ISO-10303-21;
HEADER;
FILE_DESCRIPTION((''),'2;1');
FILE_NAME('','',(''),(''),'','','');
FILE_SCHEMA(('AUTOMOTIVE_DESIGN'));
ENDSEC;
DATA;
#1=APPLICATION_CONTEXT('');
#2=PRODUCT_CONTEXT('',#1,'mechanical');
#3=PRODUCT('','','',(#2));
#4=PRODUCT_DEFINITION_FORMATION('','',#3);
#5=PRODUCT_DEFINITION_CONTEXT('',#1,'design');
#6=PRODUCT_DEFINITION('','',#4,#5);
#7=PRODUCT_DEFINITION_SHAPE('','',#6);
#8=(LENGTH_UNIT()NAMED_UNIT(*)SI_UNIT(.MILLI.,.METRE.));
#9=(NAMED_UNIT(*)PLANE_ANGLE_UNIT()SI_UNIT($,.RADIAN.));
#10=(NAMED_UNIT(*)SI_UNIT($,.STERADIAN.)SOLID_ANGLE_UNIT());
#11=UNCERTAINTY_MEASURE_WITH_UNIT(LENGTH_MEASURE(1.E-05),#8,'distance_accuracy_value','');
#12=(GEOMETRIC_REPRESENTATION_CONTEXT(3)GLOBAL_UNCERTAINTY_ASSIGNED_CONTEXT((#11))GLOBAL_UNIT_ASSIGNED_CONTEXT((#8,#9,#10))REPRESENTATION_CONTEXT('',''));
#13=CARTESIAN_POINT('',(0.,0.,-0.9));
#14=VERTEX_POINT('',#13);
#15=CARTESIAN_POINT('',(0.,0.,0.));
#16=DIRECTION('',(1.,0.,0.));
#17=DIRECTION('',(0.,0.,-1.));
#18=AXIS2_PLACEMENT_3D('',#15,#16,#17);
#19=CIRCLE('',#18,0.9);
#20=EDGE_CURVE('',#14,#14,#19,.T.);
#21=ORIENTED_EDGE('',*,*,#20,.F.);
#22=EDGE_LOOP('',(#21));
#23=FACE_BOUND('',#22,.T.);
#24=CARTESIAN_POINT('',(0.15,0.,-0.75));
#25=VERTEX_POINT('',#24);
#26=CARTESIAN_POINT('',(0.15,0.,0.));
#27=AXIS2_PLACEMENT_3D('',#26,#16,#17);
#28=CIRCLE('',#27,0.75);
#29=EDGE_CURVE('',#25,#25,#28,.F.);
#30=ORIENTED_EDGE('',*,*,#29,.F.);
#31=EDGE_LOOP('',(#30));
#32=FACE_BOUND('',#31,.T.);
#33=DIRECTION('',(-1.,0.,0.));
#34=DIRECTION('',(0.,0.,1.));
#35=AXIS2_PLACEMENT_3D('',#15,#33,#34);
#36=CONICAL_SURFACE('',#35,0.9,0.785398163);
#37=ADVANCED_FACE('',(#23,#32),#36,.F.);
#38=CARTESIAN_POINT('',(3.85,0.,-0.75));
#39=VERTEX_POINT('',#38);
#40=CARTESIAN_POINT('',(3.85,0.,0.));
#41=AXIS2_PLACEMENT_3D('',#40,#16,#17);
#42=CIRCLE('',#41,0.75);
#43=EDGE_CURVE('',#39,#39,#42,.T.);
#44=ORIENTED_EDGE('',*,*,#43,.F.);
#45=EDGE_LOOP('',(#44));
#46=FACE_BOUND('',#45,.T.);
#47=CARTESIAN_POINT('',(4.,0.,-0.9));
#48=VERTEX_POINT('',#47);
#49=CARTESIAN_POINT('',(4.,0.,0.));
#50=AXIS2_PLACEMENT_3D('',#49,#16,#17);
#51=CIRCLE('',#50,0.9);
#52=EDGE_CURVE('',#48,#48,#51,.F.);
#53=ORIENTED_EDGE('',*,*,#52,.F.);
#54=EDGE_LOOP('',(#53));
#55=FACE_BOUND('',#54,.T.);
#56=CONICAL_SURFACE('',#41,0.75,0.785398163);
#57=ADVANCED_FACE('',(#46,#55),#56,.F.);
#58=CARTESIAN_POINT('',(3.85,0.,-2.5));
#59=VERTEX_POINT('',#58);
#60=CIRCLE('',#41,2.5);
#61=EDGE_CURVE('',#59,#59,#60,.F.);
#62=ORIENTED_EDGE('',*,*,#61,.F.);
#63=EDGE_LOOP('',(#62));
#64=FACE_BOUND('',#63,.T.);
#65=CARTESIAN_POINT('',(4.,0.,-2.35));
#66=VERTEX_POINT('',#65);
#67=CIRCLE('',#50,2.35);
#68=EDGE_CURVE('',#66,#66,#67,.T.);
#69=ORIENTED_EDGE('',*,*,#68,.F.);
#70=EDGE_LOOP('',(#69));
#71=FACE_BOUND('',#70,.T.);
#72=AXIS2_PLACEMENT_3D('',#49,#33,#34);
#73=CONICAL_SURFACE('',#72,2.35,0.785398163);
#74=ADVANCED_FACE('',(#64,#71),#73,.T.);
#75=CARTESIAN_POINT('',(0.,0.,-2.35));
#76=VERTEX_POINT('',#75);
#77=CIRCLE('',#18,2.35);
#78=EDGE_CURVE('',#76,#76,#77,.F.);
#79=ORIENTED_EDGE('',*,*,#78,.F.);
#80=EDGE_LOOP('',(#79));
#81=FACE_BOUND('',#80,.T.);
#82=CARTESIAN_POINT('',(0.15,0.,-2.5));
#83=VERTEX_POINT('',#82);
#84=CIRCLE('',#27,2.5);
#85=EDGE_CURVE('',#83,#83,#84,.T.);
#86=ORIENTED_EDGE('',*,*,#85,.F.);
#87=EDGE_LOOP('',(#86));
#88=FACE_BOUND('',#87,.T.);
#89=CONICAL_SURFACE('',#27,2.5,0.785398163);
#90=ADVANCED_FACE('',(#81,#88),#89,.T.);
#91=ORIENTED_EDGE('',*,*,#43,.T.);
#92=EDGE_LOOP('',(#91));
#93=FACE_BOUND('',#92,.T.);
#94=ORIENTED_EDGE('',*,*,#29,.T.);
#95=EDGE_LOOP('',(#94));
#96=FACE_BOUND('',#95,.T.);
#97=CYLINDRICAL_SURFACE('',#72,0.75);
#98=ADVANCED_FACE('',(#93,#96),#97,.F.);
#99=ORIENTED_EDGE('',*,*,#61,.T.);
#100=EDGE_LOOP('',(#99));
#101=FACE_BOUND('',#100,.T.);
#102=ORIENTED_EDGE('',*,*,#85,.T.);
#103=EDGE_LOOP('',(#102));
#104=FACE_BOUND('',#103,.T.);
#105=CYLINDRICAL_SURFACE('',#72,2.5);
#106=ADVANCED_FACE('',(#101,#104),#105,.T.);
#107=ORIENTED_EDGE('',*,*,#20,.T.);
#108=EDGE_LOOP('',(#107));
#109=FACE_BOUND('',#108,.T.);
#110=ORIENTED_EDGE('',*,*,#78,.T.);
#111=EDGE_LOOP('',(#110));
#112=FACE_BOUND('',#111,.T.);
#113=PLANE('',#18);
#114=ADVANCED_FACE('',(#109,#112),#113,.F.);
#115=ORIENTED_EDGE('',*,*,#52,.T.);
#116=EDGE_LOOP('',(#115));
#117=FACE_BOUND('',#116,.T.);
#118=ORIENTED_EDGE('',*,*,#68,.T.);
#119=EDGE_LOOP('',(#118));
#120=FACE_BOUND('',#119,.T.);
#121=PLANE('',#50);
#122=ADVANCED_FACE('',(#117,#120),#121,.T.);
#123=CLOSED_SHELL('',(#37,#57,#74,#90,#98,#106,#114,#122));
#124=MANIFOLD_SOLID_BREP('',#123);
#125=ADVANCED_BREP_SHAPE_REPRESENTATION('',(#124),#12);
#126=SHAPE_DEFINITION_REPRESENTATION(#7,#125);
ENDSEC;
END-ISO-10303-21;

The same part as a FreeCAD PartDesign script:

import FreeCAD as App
import Part
import Sketcher
from FreeCAD import Vector
Q = App.Units.Quantity


def edges_at(feature, points):
    """Names of the edges that pass closest to the given points."""
    edges = feature.Shape.Edges
    near = lambda p: min(range(len(edges)), key=lambda i: edges[i].distToShape(Part.Vertex(*p))[0])
    return sorted({f"Edge{near(p) + 1}" for p in points})

doc = App.newDocument("Part")
body = doc.addObject("PartDesign::Body", "Body")

sketch1 = doc.addObject("Sketcher::SketchObject", "Sketch")
body.addObject(sketch1)
sketch1.AttachmentSupport = (doc.YZ_Plane, [""])
sketch1.MapMode = "FlatFace"
sketch1.addGeometry(Part.Circle(Vector(0, 0, 0), Vector(0, 0, 1), 2.5), False)
sketch1.addGeometry(Part.Circle(Vector(0, 0, 0), Vector(0, 0, 1), 0.8), False)
sketch1.addConstraint(Sketcher.Constraint("Coincident", 0, 3, -1, 1))
sketch1.addConstraint(Sketcher.Constraint("Coincident", 1, 3, -1, 1))
sketch1.addConstraint(Sketcher.Constraint("Diameter", 0, Q("5 mm")))
sketch1.addConstraint(Sketcher.Constraint("Diameter", 1, Q("1.5 mm")))
pad1 = doc.addObject("PartDesign::Pad", "Pad")
body.addObject(pad1)
pad1.Profile = sketch1
pad1.Length = 4
doc.recompute()

chamfer = doc.addObject("PartDesign::Chamfer", "Chamfer")
body.addObject(chamfer)
chamfer.Base = (pad1, edges_at(pad1, [
    (0, 0, 2.5),
    (4, 0, 2.5),
    (0, 0, 0.75),
    (4, 0, 0.75),
]))
chamfer.Size = 0.15

doc.recompute()
